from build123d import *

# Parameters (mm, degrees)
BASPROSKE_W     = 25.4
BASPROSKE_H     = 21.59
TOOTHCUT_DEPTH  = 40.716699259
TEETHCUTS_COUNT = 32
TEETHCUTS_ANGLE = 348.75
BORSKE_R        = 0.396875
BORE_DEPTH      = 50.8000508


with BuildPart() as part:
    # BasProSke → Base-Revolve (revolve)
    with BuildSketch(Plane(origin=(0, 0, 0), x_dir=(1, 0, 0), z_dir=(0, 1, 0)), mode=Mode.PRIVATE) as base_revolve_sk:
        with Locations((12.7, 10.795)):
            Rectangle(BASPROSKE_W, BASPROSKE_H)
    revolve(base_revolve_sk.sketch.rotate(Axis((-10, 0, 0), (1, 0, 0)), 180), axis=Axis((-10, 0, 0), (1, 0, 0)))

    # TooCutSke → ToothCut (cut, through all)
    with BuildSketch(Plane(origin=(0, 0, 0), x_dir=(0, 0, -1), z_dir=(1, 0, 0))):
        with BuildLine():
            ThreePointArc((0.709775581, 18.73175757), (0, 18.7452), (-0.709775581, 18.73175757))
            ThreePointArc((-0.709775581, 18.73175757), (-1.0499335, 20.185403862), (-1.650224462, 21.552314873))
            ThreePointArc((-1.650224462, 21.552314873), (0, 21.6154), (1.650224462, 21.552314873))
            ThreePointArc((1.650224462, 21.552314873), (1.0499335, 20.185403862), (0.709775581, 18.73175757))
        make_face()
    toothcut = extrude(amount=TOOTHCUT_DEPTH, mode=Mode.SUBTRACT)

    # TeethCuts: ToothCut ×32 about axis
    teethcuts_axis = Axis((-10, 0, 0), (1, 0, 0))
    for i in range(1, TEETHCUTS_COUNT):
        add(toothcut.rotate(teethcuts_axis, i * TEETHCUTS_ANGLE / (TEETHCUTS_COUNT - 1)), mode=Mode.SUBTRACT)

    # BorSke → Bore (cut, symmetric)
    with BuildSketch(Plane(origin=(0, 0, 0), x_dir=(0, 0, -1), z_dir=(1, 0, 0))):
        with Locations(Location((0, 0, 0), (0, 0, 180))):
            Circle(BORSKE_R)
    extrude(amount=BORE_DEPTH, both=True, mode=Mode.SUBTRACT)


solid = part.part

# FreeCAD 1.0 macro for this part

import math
import FreeCAD as App
import Part
import Sketcher
Q = App.Units.Quantity


def add_polygon(sketch, points):
    """Adds a closed chain of lines whose ends are joined by coincident constraints."""
    first, n = sketch.GeometryCount, len(points)
    for a, b in zip(points, points[1:] + points[:1]):
        sketch.addGeometry(Part.LineSegment(App.Vector(*a, 0), App.Vector(*b, 0)), False)
    for i in range(n):
        sketch.addConstraint(Sketcher.Constraint("Coincident", first + i, 2, first + (i + 1) % n, 1))

doc = App.newDocument("Part")
body = doc.addObject("PartDesign::Body", "Body")

sketch1 = body.newObject("Sketcher::SketchObject", "Sketch")
sketch1.AttachmentSupport = (doc.getObject("XZ_Plane"), [""])
sketch1.MapMode = "FlatFace"
add_polygon(sketch1, [(0, -22), (0, 0), (25, 0), (25, -22)])
sketch1.addConstraint(Sketcher.Constraint("Vertical", 0))
sketch1.addConstraint(Sketcher.Constraint("Horizontal", 1))
sketch1.addConstraint(Sketcher.Constraint("Vertical", 2))
sketch1.addConstraint(Sketcher.Constraint("Horizontal", 3))
sketch1.addConstraint(Sketcher.Constraint("Coincident", 0, 2, -1, 1))
sketch1.addConstraint(Sketcher.Constraint("DistanceX", 1, 1, 1, 2, Q("1 in")))
sketch1.addConstraint(Sketcher.Constraint("DistanceY", 0, 1, 0, 2, Q("0.85 in")))
revolution = body.newObject("PartDesign::Revolution", "Revolution")
revolution.Profile = sketch1
revolution.ReferenceAxis = (sketch1, ["H_Axis"])
revolution.Angle = 360

sketch2 = body.newObject("Sketcher::SketchObject", "Sketch001")
sketch2.AttachmentSupport = (doc.getObject("YZ_Plane"), [""])
sketch2.MapMode = "FlatFace"
sketch2.addGeometry(Part.ArcOfCircle(Part.Circle(App.Vector(0, 0, 0), App.Vector(0, 0, 1), 18.7), math.radians(-2.17), math.radians(2.17)), False)
sketch2.addGeometry(Part.ArcOfCircle(Part.Circle(App.Vector(17.6, -8.8, 0), App.Vector(0, 0, 1), 8.1), math.radians(61), math.radians(82)), False)
sketch2.addGeometry(Part.ArcOfCircle(Part.Circle(App.Vector(0, 0, 0), App.Vector(0, 0, 1), 21.6), math.radians(-4.38), math.radians(4.38)), False)
sketch2.addGeometry(Part.ArcOfCircle(Part.Circle(App.Vector(17.6, 8.8, 0), App.Vector(0, 0, 1), 8.1), math.radians(-82), math.radians(-61)), False)
sketch2.addConstraint(Sketcher.Constraint("Coincident", 0, 1, 1, 2))
sketch2.addConstraint(Sketcher.Constraint("Coincident", 1, 1, 2, 1))
sketch2.addConstraint(Sketcher.Constraint("Coincident", 2, 2, 3, 2))
sketch2.addConstraint(Sketcher.Constraint("Coincident", 3, 1, 0, 2))
sketch2.addConstraint(Sketcher.Constraint("Coincident", 0, 3, -1, 1))
sketch2.addConstraint(Sketcher.Constraint("Coincident", 2, 3, -1, 1))
sketch2.addConstraint(Sketcher.Constraint("Equal", 1, 3))
sketch2.addConstraint(Sketcher.Constraint("Symmetric", 1, 3, 3, 3, -1))
sketch2.addConstraint(Sketcher.Constraint("Radius", 1, Q("0.32 in")))
sketch2.addConstraint(Sketcher.Constraint("Radius", 0, Q("0.738 in")))
sketch2.addConstraint(Sketcher.Constraint("Radius", 2, Q("0.851 in")))
sketch2.addConstraint(Sketcher.Constraint("DistanceX", 1, 3, 0, 1, Q("1.1173 mm")))
sketch2.addConstraint(Sketcher.Constraint("DistanceY", 0, 1, 2, 2, Q("2.36 mm")))
pocket1 = body.newObject("PartDesign::Pocket", "Pocket")
pocket1.Profile = sketch2
pocket1.Type = "ThroughAll"
pocket1.Reversed = True
doc.recompute()

polarpattern = body.newObject("PartDesign::PolarPattern", "PolarPattern")
polarpattern.Originals = [pocket1]
polarpattern.Axis = (doc.getObject("X_Axis"), [""])
polarpattern.Angle = 360
polarpattern.Occurrences = 32
body.Tip = polarpattern

sketch3 = body.newObject("Sketcher::SketchObject", "Sketch002")
sketch3.AttachmentSupport = (doc.getObject("YZ_Plane"), [""])
sketch3.MapMode = "FlatFace"
sketch3.addGeometry(Part.Circle(App.Vector(0, 0, 0), App.Vector(0, 0, 1), 0.4), False)
sketch3.addConstraint(Sketcher.Constraint("Coincident", 0, 3, -1, 1))
sketch3.addConstraint(Sketcher.Constraint("Diameter", 0, Q("0.03125 in")))
pocket2 = body.newObject("PartDesign::Pocket", "Pocket001")
pocket2.Profile = sketch3
pocket2.Length = 101.600102
pocket2.Midplane = True

doc.recompute()
